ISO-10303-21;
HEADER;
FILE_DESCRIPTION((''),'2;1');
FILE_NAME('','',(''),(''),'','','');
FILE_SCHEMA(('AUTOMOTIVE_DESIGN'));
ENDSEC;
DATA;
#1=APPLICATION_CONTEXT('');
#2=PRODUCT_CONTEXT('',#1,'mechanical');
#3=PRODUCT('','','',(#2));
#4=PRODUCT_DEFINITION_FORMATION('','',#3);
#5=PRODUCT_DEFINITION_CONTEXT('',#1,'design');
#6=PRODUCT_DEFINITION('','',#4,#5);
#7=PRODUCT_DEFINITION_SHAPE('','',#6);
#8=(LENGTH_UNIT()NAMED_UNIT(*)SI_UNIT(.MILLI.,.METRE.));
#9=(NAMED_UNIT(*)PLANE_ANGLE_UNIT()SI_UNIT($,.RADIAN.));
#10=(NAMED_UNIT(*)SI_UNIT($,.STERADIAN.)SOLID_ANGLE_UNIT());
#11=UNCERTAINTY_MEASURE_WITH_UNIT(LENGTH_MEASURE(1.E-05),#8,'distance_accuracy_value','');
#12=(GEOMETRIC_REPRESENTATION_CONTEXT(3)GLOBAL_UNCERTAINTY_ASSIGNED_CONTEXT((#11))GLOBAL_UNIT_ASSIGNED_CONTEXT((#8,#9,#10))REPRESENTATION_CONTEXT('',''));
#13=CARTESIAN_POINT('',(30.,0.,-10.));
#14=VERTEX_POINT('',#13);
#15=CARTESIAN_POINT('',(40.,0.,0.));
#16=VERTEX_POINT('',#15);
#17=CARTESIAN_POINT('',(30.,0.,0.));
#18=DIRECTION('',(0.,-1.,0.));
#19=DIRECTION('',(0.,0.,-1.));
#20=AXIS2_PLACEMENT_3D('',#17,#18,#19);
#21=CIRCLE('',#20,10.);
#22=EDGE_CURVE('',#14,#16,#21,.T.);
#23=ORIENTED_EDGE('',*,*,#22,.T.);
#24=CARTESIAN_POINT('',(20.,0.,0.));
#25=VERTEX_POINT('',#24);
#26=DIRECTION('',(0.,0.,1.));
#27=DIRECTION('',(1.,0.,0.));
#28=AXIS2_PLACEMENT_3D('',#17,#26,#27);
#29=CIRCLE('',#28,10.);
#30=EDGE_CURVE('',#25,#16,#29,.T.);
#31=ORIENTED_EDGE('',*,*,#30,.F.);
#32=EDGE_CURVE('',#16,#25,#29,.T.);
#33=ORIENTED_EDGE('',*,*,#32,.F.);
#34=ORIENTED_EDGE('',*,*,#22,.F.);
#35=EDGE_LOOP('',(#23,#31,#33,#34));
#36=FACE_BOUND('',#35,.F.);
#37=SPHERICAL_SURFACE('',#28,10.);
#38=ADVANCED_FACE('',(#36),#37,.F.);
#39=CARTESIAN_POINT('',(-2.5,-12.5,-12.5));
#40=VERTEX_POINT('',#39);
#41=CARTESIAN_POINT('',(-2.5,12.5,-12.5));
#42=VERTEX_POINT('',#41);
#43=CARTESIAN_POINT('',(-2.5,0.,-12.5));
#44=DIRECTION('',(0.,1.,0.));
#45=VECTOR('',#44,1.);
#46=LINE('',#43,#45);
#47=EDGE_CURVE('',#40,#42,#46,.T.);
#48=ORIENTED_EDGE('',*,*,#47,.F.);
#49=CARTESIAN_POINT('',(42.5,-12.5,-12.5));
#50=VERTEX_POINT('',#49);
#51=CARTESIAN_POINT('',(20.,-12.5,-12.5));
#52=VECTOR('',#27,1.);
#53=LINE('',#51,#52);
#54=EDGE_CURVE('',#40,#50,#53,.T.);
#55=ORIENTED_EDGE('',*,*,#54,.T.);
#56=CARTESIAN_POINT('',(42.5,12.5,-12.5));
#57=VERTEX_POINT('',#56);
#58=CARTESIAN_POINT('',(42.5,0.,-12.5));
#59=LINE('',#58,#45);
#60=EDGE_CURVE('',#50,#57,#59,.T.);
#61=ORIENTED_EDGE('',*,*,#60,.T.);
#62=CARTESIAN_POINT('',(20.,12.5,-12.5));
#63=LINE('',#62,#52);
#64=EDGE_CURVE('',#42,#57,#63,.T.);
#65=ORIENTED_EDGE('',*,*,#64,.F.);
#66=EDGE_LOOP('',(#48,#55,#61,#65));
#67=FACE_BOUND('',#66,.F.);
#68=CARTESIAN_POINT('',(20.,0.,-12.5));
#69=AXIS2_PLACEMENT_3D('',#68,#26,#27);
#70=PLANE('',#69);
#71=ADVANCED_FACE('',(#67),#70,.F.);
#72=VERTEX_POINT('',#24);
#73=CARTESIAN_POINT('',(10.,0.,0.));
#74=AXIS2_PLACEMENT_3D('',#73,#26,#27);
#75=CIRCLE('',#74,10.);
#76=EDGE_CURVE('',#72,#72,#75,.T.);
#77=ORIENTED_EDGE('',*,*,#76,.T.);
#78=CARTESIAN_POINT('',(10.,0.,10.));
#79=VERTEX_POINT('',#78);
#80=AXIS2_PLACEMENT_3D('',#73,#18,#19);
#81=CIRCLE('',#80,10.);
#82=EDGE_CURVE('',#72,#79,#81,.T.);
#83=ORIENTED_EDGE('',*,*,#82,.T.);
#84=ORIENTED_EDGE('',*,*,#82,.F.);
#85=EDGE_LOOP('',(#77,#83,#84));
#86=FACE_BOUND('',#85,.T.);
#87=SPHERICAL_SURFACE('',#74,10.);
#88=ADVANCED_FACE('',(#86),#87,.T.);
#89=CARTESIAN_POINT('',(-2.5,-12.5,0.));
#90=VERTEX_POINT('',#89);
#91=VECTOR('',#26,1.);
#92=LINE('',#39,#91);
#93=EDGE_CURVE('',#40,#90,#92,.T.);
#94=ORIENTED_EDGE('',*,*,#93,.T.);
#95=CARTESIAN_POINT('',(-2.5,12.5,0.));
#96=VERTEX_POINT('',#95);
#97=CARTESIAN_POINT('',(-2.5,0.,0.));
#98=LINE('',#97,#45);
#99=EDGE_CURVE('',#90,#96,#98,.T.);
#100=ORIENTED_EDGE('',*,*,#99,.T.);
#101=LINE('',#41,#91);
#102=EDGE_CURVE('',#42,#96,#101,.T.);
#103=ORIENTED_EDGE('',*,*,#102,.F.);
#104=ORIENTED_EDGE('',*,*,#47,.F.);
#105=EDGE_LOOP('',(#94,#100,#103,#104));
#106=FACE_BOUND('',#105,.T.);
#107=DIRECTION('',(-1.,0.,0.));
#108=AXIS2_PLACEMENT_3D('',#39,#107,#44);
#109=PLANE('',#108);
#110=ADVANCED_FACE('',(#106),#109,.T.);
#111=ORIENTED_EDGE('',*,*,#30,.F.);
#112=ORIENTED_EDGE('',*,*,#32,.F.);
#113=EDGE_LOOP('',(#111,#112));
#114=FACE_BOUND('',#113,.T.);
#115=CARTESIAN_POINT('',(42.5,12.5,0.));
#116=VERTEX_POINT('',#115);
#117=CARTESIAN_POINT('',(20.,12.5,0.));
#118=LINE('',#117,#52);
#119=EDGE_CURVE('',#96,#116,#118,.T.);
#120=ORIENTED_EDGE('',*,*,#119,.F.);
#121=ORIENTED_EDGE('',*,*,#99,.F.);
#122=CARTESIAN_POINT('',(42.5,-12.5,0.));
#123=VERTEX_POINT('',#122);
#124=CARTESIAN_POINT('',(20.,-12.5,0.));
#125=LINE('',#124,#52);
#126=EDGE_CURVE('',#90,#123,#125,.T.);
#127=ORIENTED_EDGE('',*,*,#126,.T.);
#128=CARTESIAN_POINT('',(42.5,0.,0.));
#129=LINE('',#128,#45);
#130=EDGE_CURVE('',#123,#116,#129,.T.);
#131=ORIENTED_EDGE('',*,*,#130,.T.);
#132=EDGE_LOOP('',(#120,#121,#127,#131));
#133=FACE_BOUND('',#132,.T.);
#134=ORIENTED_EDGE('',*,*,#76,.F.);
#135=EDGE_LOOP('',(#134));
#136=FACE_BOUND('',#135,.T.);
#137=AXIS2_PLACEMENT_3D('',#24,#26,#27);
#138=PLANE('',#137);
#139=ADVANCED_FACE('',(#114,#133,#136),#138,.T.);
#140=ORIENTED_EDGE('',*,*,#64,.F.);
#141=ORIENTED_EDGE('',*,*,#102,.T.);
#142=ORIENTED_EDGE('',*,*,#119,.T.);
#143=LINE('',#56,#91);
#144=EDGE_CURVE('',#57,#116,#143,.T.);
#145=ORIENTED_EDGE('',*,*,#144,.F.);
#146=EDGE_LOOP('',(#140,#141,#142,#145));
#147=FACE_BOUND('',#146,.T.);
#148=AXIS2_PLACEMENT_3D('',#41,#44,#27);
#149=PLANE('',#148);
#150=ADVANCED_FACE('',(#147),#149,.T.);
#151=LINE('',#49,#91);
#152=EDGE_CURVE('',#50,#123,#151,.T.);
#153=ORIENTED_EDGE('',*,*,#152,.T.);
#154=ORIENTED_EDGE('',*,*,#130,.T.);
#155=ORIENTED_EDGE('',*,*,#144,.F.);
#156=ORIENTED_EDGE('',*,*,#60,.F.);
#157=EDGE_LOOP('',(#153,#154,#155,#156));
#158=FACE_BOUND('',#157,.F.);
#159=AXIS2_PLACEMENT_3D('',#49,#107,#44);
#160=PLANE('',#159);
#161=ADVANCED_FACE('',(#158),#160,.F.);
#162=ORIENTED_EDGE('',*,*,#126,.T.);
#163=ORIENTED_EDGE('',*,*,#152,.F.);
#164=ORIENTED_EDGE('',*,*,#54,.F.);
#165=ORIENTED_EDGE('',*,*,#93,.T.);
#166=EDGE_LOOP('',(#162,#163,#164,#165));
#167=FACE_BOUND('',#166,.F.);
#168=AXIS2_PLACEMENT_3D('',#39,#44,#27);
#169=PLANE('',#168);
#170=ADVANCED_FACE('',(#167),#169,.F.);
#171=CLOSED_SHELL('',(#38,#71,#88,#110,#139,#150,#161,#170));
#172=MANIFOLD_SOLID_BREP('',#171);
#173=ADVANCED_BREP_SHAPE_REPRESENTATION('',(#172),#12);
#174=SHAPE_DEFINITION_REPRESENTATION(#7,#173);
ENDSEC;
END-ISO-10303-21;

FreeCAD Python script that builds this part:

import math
import FreeCAD as App
import Part
import Sketcher
from FreeCAD import Vector

doc = App.newDocument("Part")
body = doc.addObject("PartDesign::Body", "Body")

# Sketch on XZ plane
sketch1 = body.newObject("Sketcher::SketchObject", "Sketch")
sketch1.AttachmentSupport = (doc.getObject("XZ_Plane"), [""])
sketch1.MapMode = "FlatFace"
sketch1.addGeometry(Part.ArcOfCircle(Part.Circle(Vector(30, 0, 0), Vector(0, 0, 1), 10), math.radians(-90), math.radians(90)), False)
sketch1.addGeometry(Part.LineSegment(Vector(30, 10, 0), Vector(30, -10, 0)), False)
sketch1.addGeometry(Part.LineSegment(Vector(30, -10, 0), Vector(30, 10, 0)), True)  # axis
sketch1.addConstraint(Sketcher.Constraint("Coincident", 0, 1, 1, 2))
sketch1.addConstraint(Sketcher.Constraint("Coincident", 1, 1, 0, 2))
sketch1.addConstraint(Sketcher.Constraint("Vertical", 1))
sketch1.addConstraint(Sketcher.Constraint("Vertical", 2))
sketch1.addConstraint(Sketcher.Constraint("Coincident", 2, 1, 0, 1))
sketch1.addConstraint(Sketcher.Constraint("PointOnObject", 0, 3, -1))
sketch1.addConstraint(Sketcher.Constraint("Equal", 1, 2))
sketch1.addConstraint(Sketcher.Constraint("Radius", 0, 10.0))
sketch1.addConstraint(Sketcher.Constraint("DistanceX", -1, 1, 0, 3, 30.0))
sketch1.addConstraint(Sketcher.Constraint("DistanceX", -1, 1, 0, 1, 30.0))
revolution = body.newObject("PartDesign::Revolution", "Revolution")
revolution.Profile = sketch1
revolution.ReferenceAxis = (sketch1, ["Axis0"])
revolution.Angle = 360
body2 = doc.addObject("PartDesign::Body", "Body001")

# Sketch on XY plane
sketch2 = body2.newObject("Sketcher::SketchObject", "Sketch001")
sketch2.AttachmentSupport = (doc.getObject("XY_Plane001"), [""])
sketch2.MapMode = "FlatFace"
sketch2.AttachmentOffset = App.Placement(Vector(0, 0, -12.5), App.Rotation())
sketch2.addGeometry(Part.LineSegment(Vector(-2, 12, 0), Vector(-2, -12, 0)), False)
sketch2.addGeometry(Part.LineSegment(Vector(-2, -12, 0), Vector(42, -12, 0)), False)
sketch2.addGeometry(Part.LineSegment(Vector(42, -12, 0), Vector(42, 12, 0)), False)
sketch2.addGeometry(Part.LineSegment(Vector(42, 12, 0), Vector(-2, 12, 0)), False)
sketch2.addConstraint(Sketcher.Constraint("Coincident", 0, 2, 1, 1))
sketch2.addConstraint(Sketcher.Constraint("Coincident", 1, 2, 2, 1))
sketch2.addConstraint(Sketcher.Constraint("Coincident", 2, 2, 3, 1))
sketch2.addConstraint(Sketcher.Constraint("Coincident", 3, 2, 0, 1))
sketch2.addConstraint(Sketcher.Constraint("Vertical", 0))
sketch2.addConstraint(Sketcher.Constraint("Horizontal", 1))
sketch2.addConstraint(Sketcher.Constraint("Vertical", 2))
sketch2.addConstraint(Sketcher.Constraint("Horizontal", 3))
sketch2.addConstraint(Sketcher.Constraint("DistanceX", 1, 1, 1, 2, 45.0))
sketch2.addConstraint(Sketcher.Constraint("DistanceY", 0, 2, 0, 1, 25.0))
sketch2.addConstraint(Sketcher.Constraint("DistanceX", 0, 2, -1, 1, 2.5))
sketch2.addConstraint(Sketcher.Constraint("DistanceY", 0, 2, -1, 1, 12.5))
pad1 = body2.newObject("PartDesign::Pad", "Pad")
pad1.Profile = sketch2
pad1.Length = 12.5
body3 = doc.addObject("PartDesign::Body", "Body002")

# Sketch on XZ plane
sketch3 = body3.newObject("Sketcher::SketchObject", "Sketch002")
sketch3.AttachmentSupport = (doc.getObject("XZ_Plane002"), [""])
sketch3.MapMode = "FlatFace"
sketch3.addGeometry(Part.ArcOfCircle(Part.Circle(Vector(10, 0, 0), Vector(0, 0, 1), 10), math.radians(-90), math.radians(90)), False)
sketch3.addGeometry(Part.LineSegment(Vector(10, 10, 0), Vector(10, -10, 0)), False)
sketch3.addGeometry(Part.LineSegment(Vector(10, -10, 0), Vector(10, 10, 0)), True)  # axis
sketch3.addConstraint(Sketcher.Constraint("Coincident", 0, 1, 1, 2))
sketch3.addConstraint(Sketcher.Constraint("Coincident", 1, 1, 0, 2))
sketch3.addConstraint(Sketcher.Constraint("Vertical", 1))
sketch3.addConstraint(Sketcher.Constraint("Vertical", 2))
sketch3.addConstraint(Sketcher.Constraint("Coincident", 2, 1, 0, 1))
sketch3.addConstraint(Sketcher.Constraint("PointOnObject", 0, 3, -1))
sketch3.addConstraint(Sketcher.Constraint("Equal", 1, 2))
sketch3.addConstraint(Sketcher.Constraint("Radius", 0, 10.0))
sketch3.addConstraint(Sketcher.Constraint("DistanceX", -1, 1, 0, 3, 10.0))
sketch3.addConstraint(Sketcher.Constraint("DistanceX", -1, 1, 0, 1, 10.0))
revolution2 = body3.newObject("PartDesign::Revolution", "Revolution001")
revolution2.Profile = sketch3
revolution2.ReferenceAxis = (sketch3, ["Axis0"])
revolution2.Angle = 360
doc.recompute()

boolean = body3.newObject("PartDesign::Boolean", "Boolean")
boolean.Type = "Fuse"
boolean.addObjects([body2])
doc.recompute()

boolean2 = body3.newObject("PartDesign::Boolean", "Boolean001")
boolean2.Type = "Cut"
boolean2.addObjects([body])

doc.recompute()
